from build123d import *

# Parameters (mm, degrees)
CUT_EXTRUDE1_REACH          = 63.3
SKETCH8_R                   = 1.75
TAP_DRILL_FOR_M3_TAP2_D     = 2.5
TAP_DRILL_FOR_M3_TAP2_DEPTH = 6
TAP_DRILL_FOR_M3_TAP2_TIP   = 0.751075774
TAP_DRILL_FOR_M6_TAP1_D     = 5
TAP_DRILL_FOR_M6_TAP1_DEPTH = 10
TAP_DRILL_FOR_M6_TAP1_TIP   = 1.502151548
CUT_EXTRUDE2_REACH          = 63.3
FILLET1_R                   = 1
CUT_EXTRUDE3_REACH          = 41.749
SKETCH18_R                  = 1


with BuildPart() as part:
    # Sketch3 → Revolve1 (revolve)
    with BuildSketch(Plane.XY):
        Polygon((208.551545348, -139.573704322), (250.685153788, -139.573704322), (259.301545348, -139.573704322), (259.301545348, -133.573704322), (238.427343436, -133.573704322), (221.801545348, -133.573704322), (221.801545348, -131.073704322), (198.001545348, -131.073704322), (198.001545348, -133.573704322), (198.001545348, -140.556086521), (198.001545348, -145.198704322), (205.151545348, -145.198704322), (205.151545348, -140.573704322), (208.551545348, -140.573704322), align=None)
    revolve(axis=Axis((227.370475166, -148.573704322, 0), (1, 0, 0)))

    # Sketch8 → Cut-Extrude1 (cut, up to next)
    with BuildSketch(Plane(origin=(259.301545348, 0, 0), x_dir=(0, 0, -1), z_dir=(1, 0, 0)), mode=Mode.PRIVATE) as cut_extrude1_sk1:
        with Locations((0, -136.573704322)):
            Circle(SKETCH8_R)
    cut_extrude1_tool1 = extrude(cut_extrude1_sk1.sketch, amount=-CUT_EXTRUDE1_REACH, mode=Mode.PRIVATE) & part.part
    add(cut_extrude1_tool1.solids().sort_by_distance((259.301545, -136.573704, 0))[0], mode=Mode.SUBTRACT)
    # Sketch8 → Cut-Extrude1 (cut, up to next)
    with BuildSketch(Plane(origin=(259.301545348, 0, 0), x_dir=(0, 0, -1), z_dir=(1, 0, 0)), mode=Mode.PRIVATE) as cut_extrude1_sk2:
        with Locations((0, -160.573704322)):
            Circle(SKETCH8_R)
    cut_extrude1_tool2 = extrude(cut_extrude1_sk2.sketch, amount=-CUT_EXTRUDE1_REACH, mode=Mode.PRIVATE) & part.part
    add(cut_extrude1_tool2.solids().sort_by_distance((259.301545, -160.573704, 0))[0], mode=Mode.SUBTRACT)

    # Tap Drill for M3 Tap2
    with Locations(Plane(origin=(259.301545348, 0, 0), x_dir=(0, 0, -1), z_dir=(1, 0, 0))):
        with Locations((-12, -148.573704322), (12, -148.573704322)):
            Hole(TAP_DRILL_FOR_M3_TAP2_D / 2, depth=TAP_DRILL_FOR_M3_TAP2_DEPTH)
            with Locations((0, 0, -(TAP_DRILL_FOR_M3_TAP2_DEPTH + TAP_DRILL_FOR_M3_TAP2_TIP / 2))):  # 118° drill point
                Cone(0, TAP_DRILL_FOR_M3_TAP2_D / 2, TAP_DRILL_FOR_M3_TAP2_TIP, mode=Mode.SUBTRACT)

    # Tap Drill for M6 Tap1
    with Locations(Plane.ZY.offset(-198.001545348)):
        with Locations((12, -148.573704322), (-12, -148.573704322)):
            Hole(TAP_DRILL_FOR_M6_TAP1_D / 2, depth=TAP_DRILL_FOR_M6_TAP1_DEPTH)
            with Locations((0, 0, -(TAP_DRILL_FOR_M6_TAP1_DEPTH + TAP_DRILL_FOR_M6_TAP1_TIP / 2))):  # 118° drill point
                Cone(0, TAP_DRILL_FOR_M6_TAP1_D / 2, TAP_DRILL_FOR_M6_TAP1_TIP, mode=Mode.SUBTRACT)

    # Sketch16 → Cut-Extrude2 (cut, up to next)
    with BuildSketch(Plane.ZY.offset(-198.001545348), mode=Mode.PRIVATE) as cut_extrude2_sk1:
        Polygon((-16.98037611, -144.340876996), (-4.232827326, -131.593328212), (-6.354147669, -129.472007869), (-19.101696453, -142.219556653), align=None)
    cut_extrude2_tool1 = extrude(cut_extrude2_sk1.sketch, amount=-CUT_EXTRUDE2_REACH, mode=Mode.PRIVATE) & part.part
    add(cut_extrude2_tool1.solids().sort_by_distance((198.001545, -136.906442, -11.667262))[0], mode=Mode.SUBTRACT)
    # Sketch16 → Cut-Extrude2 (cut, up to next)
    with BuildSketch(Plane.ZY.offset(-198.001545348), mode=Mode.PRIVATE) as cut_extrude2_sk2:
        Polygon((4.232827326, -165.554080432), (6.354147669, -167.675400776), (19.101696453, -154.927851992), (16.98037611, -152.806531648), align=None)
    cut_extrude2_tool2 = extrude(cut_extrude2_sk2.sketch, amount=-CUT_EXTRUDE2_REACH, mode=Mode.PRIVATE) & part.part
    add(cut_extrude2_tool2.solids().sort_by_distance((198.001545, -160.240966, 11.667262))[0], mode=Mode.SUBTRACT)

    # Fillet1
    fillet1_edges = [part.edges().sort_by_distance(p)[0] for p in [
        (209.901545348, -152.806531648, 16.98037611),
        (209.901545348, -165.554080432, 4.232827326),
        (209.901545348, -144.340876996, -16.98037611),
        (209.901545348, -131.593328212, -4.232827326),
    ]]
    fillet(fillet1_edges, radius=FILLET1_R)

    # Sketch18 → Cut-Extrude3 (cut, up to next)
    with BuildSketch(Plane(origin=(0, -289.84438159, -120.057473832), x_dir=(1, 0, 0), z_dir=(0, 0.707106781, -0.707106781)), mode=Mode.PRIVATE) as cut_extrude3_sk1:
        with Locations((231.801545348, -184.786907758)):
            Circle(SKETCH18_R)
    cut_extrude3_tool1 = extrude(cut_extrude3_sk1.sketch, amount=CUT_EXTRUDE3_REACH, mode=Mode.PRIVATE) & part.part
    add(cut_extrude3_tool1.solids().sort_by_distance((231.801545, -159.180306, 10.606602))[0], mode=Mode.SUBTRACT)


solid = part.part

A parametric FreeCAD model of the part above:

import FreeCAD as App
import Part
import Sketcher

V = App.Vector
Q = App.Units.Quantity


def edges_at(feature, points):
    """Names of the edges that pass closest to the given points."""
    edges = feature.Shape.Edges
    near = lambda p: min(range(len(edges)), key=lambda i: edges[i].distToShape(Part.Vertex(*p))[0])
    return sorted({f"Edge{near(p) + 1}" for p in points})

doc = App.newDocument("Part")
body = doc.addObject("PartDesign::Body", "Body")

sketch1 = doc.addObject("Sketcher::SketchObject", "Sketch")
body.addObject(sketch1)
sketch1.AttachmentSupport = (doc.XY_Plane, [""])
sketch1.MapMode = "FlatFace"
sketch1.addGeometry(Part.LineSegment(V(208.6, -139.6, 0), V(259.3, -139.6, 0)), False)
sketch1.addGeometry(Part.LineSegment(V(259.3, -139.6, 0), V(259.3, -133.6, 0)), False)
sketch1.addGeometry(Part.LineSegment(V(259.3, -133.6, 0), V(221.8, -133.6, 0)), False)
sketch1.addGeometry(Part.LineSegment(V(221.8, -133.6, 0), V(221.8, -131.1, 0)), False)
sketch1.addGeometry(Part.LineSegment(V(221.8, -131.1, 0), V(198, -131.1, 0)), False)
sketch1.addGeometry(Part.LineSegment(V(198, -131.1, 0), V(198, -145.2, 0)), False)
sketch1.addGeometry(Part.LineSegment(V(198, -145.2, 0), V(205.2, -145.2, 0)), False)
sketch1.addGeometry(Part.LineSegment(V(205.2, -145.2, 0), V(205.2, -140.6, 0)), False)
sketch1.addGeometry(Part.LineSegment(V(205.2, -140.6, 0), V(208.6, -140.6, 0)), False)
sketch1.addGeometry(Part.LineSegment(V(208.6, -140.6, 0), V(208.6, -139.6, 0)), False)
sketch1.addGeometry(Part.LineSegment(V(198, -148.6, 0), V(259.3, -148.6, 0)), True)
sketch1.addConstraint(Sketcher.Constraint("Coincident", 0, 2, 1, 1))
sketch1.addConstraint(Sketcher.Constraint("Coincident", 1, 2, 2, 1))
sketch1.addConstraint(Sketcher.Constraint("Coincident", 2, 2, 3, 1))
sketch1.addConstraint(Sketcher.Constraint("Coincident", 3, 2, 4, 1))
sketch1.addConstraint(Sketcher.Constraint("Coincident", 4, 2, 5, 1))
sketch1.addConstraint(Sketcher.Constraint("Coincident", 5, 2, 6, 1))
sketch1.addConstraint(Sketcher.Constraint("Coincident", 6, 2, 7, 1))
sketch1.addConstraint(Sketcher.Constraint("Coincident", 7, 2, 8, 1))
sketch1.addConstraint(Sketcher.Constraint("Coincident", 8, 2, 9, 1))
sketch1.addConstraint(Sketcher.Constraint("Coincident", 9, 2, 0, 1))
sketch1.addConstraint(Sketcher.Constraint("Horizontal", 0))
sketch1.addConstraint(Sketcher.Constraint("Vertical", 1))
sketch1.addConstraint(Sketcher.Constraint("Horizontal", 2))
sketch1.addConstraint(Sketcher.Constraint("Vertical", 3))
sketch1.addConstraint(Sketcher.Constraint("Horizontal", 4))
sketch1.addConstraint(Sketcher.Constraint("Vertical", 5))
sketch1.addConstraint(Sketcher.Constraint("Horizontal", 6))
sketch1.addConstraint(Sketcher.Constraint("Vertical", 7))
sketch1.addConstraint(Sketcher.Constraint("Horizontal", 8))
sketch1.addConstraint(Sketcher.Constraint("Vertical", 9))
sketch1.addConstraint(Sketcher.Constraint("Horizontal", 10))
sketch1.addConstraint(Sketcher.Constraint("Vertical", 5, 2, 10, 1))
sketch1.addConstraint(Sketcher.Constraint("Vertical", 1, 2, 10, 2))
sketch1.addConstraint(Sketcher.Constraint("DistanceY", 1, 1, 1, 2, 6.0))
sketch1.addConstraint(Sketcher.Constraint("DistanceY", 9, 1, 9, 2, 1.0))
sketch1.addConstraint(Sketcher.Constraint("DistanceX", 2, 2, 2, 1, 37.5))
sketch1.addConstraint(Sketcher.Constraint("DistanceX", 4, 2, 4, 1, 23.8))
sketch1.addConstraint(Sketcher.Constraint("DistanceX", 8, 1, 8, 2, 3.4))
sketch1.addConstraint(Sketcher.Constraint("DistanceY", 3, 1, 3, 2, 2.5))
sketch1.addConstraint(Sketcher.Constraint("DistanceY", 10, 1, 7, 2, 8.0))
sketch1.addConstraint(Sketcher.Constraint("DistanceX", 0, 1, 0, 2, 50.75))
sketch1.addConstraint(Sketcher.Constraint("DistanceY", 5, 2, 5, 1, 14.125))
sketch1.addConstraint(Sketcher.Constraint("DistanceX", -1, 1, 0, 2, 259.301545))
sketch1.addConstraint(Sketcher.Constraint("DistanceY", 0, 2, -1, 1, 139.573704))
revolution = doc.addObject("PartDesign::Revolution", "Revolution")
body.addObject(revolution)
revolution.Profile = sketch1
revolution.ReferenceAxis = (sketch1, ["Axis0"])
revolution.Angle = 360

sketch2 = doc.addObject("Sketcher::SketchObject", "Sketch001")
body.addObject(sketch2)
sketch2.AttachmentSupport = (doc.YZ_Plane, [""])
sketch2.MapMode = "FlatFace"
sketch2.AttachmentOffset = App.Placement(V(0, 0, 259.301545), App.Rotation())
sketch2.addGeometry(Part.Circle(V(-136.6, 0, 0), V(0, 0, 1), 1.8), False)
sketch2.addConstraint(Sketcher.Constraint("PointOnObject", 0, 3, -1))
sketch2.addConstraint(Sketcher.Constraint("Diameter", 0, 3.5))
sketch2.addConstraint(Sketcher.Constraint("DistanceX", 0, 3, -1, 1, 136.573704))
pocket1 = doc.addObject("PartDesign::Pocket", "Pocket")
body.addObject(pocket1)
pocket1.Profile = sketch2
pocket1.Type = "UpToFirst"

sketch3 = doc.addObject("Sketcher::SketchObject", "Sketch002")
body.addObject(sketch3)
sketch3.AttachmentSupport = (doc.YZ_Plane, [""])
sketch3.MapMode = "FlatFace"
sketch3.AttachmentOffset = App.Placement(V(0, 0, 259.301545), App.Rotation())
sketch3.addGeometry(Part.Circle(V(-160.6, 0, 0), V(0, 0, 1), 1.8), False)
sketch3.addConstraint(Sketcher.Constraint("PointOnObject", 0, 3, -1))
sketch3.addConstraint(Sketcher.Constraint("Diameter", 0, 3.5))
sketch3.addConstraint(Sketcher.Constraint("DistanceX", 0, 3, -1, 1, 160.573704))
pocket2 = doc.addObject("PartDesign::Pocket", "Pocket001")
body.addObject(pocket2)
pocket2.Profile = sketch3
pocket2.Type = "UpToFirst"

sketch4 = doc.addObject("Sketcher::SketchObject", "Sketch003")
body.addObject(sketch4)
sketch4.AttachmentSupport = (doc.YZ_Plane, [""])
sketch4.MapMode = "FlatFace"
sketch4.AttachmentOffset = App.Placement(V(0, 0, 259.301545), App.Rotation())
sketch4.addGeometry(Part.Circle(V(-148.6, 12, 0), V(0, 0, 1), 1.2), False)
sketch4.addGeometry(Part.Circle(V(-148.6, -12, 0), V(0, 0, 1), 1.2), False)
sketch4.addConstraint(Sketcher.Constraint("Equal", 0, 1))
sketch4.addConstraint(Sketcher.Constraint("Symmetric", 0, 3, 1, 3, -1))
sketch4.addConstraint(Sketcher.Constraint("Diameter", 0, 2.5))
sketch4.addConstraint(Sketcher.Constraint("DistanceY", -1, 1, 0, 3, 12.0))
sketch4.addConstraint(Sketcher.Constraint("DistanceX", 0, 3, -1, 1, 148.573704))
doc.recompute()
hole = doc.addObject("PartDesign::Hole", "Hole")
body.addObject(hole)
hole.Profile = sketch4
hole.ThreadType = "None"
hole.Diameter = 2.5
hole.DepthType = "Dimension"
hole.Depth = 6
hole.DrillPoint = "Angled"
hole.DrillPointAngle = 118

sketch5 = doc.addObject("Sketcher::SketchObject", "Sketch004")
body.addObject(sketch5)
sketch5.AttachmentSupport = (doc.YZ_Plane, [""])
sketch5.MapMode = "FlatFace"
sketch5.AttachmentOffset = App.Placement(V(0, 0, 198.001545), App.Rotation())
sketch5.addGeometry(Part.Circle(V(-148.6, 12, 0), V(0, 0, 1), 2.5), False)
sketch5.addGeometry(Part.Circle(V(-148.6, -12, 0), V(0, 0, 1), 2.5), False)
sketch5.addConstraint(Sketcher.Constraint("Equal", 0, 1))
sketch5.addConstraint(Sketcher.Constraint("Symmetric", 0, 3, 1, 3, -1))
sketch5.addConstraint(Sketcher.Constraint("Diameter", 0, 5.0))
sketch5.addConstraint(Sketcher.Constraint("DistanceY", -1, 1, 0, 3, 12.0))
sketch5.addConstraint(Sketcher.Constraint("DistanceX", 0, 3, -1, 1, 148.573704))
doc.recompute()
hole2 = doc.addObject("PartDesign::Hole", "Hole001")
body.addObject(hole2)
hole2.Profile = sketch5
hole2.ThreadType = "None"
hole2.Diameter = 5
hole2.DepthType = "Dimension"
hole2.Depth = 10
hole2.DrillPoint = "Angled"
hole2.DrillPointAngle = 118
hole2.Reversed = True

sketch6 = doc.addObject("Sketcher::SketchObject", "Sketch005")
body.addObject(sketch6)
sketch6.AttachmentSupport = (doc.YZ_Plane, [""])
sketch6.MapMode = "FlatFace"
sketch6.AttachmentOffset = App.Placement(V(0, 0, 198.001545), App.Rotation())
sketch6.addGeometry(Part.LineSegment(V(-144.3, -17, 0), V(-131.6, -4.2, 0)), False)
sketch6.addGeometry(Part.LineSegment(V(-131.6, -4.2, 0), V(-129.5, -6.4, 0)), False)
sketch6.addGeometry(Part.LineSegment(V(-129.5, -6.4, 0), V(-142.2, -19.1, 0)), False)
sketch6.addGeometry(Part.LineSegment(V(-142.2, -19.1, 0), V(-144.3, -17, 0)), False)
sketch6.addConstraint(Sketcher.Constraint("Coincident", 0, 2, 1, 1))
sketch6.addConstraint(Sketcher.Constraint("Coincident", 1, 2, 2, 1))
sketch6.addConstraint(Sketcher.Constraint("Coincident", 2, 2, 3, 1))
sketch6.addConstraint(Sketcher.Constraint("Coincident", 3, 2, 0, 1))
sketch6.addConstraint(Sketcher.Constraint("Perpendicular", 0, 1))
sketch6.addConstraint(Sketcher.Constraint("Perpendicular", 1, 2))
sketch6.addConstraint(Sketcher.Constraint("Perpendicular", 2, 3))
sketch6.addConstraint(Sketcher.Constraint("Angle", 0, Q("45 deg")))
sketch6.addConstraint(Sketcher.Constraint("Distance", 1, 3.0))
sketch6.addConstraint(Sketcher.Constraint("DistanceX", 0, 2, -1, 1, 131.593328))
sketch6.addConstraint(Sketcher.Constraint("DistanceX", 2, 2, 1, 2, 12.747549))
sketch6.addConstraint(Sketcher.Constraint("DistanceY", 0, 2, -1, 1, 4.232827))
pocket3 = doc.addObject("PartDesign::Pocket", "Pocket002")
body.addObject(pocket3)
pocket3.Profile = sketch6
pocket3.Type = "UpToFirst"
pocket3.Reversed = True

sketch7 = doc.addObject("Sketcher::SketchObject", "Sketch006")
body.addObject(sketch7)
sketch7.AttachmentSupport = (doc.YZ_Plane, [""])
sketch7.MapMode = "FlatFace"
sketch7.AttachmentOffset = App.Placement(V(0, 0, 198.001545), App.Rotation())
sketch7.addGeometry(Part.LineSegment(V(-165.6, 4.2, 0), V(-167.7, 6.4, 0)), False)
sketch7.addGeometry(Part.LineSegment(V(-167.7, 6.4, 0), V(-154.9, 19.1, 0)), False)
sketch7.addGeometry(Part.LineSegment(V(-154.9, 19.1, 0), V(-152.8, 17, 0)), False)
sketch7.addGeometry(Part.LineSegment(V(-152.8, 17, 0), V(-165.6, 4.2, 0)), False)
sketch7.addConstraint(Sketcher.Constraint("Coincident", 0, 2, 1, 1))
sketch7.addConstraint(Sketcher.Constraint("Coincident", 1, 2, 2, 1))
sketch7.addConstraint(Sketcher.Constraint("Coincident", 2, 2, 3, 1))
sketch7.addConstraint(Sketcher.Constraint("Coincident", 3, 2, 0, 1))
sketch7.addConstraint(Sketcher.Constraint("Perpendicular", 0, 1))
sketch7.addConstraint(Sketcher.Constraint("Perpendicular", 1, 2))
sketch7.addConstraint(Sketcher.Constraint("Perpendicular", 2, 3))
sketch7.addConstraint(Sketcher.Constraint("Angle", 0, Q("135 deg")))
sketch7.addConstraint(Sketcher.Constraint("Distance", 0, 3.0))
sketch7.addConstraint(Sketcher.Constraint("DistanceX", 0, 2, -1, 1, 167.675401))
sketch7.addConstraint(Sketcher.Constraint("DistanceX", 1, 2, -1, 1, 154.927852))
sketch7.addConstraint(Sketcher.Constraint("DistanceY", -1, 1, 0, 2, 6.354148))
pocket4 = doc.addObject("PartDesign::Pocket", "Pocket003")
body.addObject(pocket4)
pocket4.Profile = sketch7
pocket4.Type = "UpToFirst"
pocket4.Reversed = True
doc.recompute()

fillet = doc.addObject("PartDesign::Fillet", "Fillet")
body.addObject(fillet)
fillet.Base = (pocket4, edges_at(pocket4, [
    (209.902, -152.807, 16.98),
    (209.902, -165.554, 4.233),
    (209.902, -144.341, -16.98),
    (209.902, -131.593, -4.233),
]))
fillet.Radius = 1

sketch8 = doc.addObject("Sketcher::SketchObject", "Sketch007")
body.addObject(sketch8)
sketch8.Placement = App.Placement(V(0, -289.844382, -120.057474), App.Rotation(V(1, 0, 0), V(0, -0.707106781, -0.707106781), V(0, 0.707106781, -0.707106781), "ZXY"))
sketch8.addGeometry(Part.Circle(V(231.8, -184.8, 0), V(0, 0, 1), 1), False)
sketch8.addConstraint(Sketcher.Constraint("Diameter", 0, 2.0))
sketch8.addConstraint(Sketcher.Constraint("DistanceX", -1, 1, 0, 3, 231.801545))
sketch8.addConstraint(Sketcher.Constraint("DistanceY", 0, 3, -1, 1, 184.786908))
pocket5 = doc.addObject("PartDesign::Pocket", "Pocket004")
body.addObject(pocket5)
pocket5.Profile = sketch8
pocket5.Type = "UpToFirst"
pocket5.Reversed = True

doc.recompute()
